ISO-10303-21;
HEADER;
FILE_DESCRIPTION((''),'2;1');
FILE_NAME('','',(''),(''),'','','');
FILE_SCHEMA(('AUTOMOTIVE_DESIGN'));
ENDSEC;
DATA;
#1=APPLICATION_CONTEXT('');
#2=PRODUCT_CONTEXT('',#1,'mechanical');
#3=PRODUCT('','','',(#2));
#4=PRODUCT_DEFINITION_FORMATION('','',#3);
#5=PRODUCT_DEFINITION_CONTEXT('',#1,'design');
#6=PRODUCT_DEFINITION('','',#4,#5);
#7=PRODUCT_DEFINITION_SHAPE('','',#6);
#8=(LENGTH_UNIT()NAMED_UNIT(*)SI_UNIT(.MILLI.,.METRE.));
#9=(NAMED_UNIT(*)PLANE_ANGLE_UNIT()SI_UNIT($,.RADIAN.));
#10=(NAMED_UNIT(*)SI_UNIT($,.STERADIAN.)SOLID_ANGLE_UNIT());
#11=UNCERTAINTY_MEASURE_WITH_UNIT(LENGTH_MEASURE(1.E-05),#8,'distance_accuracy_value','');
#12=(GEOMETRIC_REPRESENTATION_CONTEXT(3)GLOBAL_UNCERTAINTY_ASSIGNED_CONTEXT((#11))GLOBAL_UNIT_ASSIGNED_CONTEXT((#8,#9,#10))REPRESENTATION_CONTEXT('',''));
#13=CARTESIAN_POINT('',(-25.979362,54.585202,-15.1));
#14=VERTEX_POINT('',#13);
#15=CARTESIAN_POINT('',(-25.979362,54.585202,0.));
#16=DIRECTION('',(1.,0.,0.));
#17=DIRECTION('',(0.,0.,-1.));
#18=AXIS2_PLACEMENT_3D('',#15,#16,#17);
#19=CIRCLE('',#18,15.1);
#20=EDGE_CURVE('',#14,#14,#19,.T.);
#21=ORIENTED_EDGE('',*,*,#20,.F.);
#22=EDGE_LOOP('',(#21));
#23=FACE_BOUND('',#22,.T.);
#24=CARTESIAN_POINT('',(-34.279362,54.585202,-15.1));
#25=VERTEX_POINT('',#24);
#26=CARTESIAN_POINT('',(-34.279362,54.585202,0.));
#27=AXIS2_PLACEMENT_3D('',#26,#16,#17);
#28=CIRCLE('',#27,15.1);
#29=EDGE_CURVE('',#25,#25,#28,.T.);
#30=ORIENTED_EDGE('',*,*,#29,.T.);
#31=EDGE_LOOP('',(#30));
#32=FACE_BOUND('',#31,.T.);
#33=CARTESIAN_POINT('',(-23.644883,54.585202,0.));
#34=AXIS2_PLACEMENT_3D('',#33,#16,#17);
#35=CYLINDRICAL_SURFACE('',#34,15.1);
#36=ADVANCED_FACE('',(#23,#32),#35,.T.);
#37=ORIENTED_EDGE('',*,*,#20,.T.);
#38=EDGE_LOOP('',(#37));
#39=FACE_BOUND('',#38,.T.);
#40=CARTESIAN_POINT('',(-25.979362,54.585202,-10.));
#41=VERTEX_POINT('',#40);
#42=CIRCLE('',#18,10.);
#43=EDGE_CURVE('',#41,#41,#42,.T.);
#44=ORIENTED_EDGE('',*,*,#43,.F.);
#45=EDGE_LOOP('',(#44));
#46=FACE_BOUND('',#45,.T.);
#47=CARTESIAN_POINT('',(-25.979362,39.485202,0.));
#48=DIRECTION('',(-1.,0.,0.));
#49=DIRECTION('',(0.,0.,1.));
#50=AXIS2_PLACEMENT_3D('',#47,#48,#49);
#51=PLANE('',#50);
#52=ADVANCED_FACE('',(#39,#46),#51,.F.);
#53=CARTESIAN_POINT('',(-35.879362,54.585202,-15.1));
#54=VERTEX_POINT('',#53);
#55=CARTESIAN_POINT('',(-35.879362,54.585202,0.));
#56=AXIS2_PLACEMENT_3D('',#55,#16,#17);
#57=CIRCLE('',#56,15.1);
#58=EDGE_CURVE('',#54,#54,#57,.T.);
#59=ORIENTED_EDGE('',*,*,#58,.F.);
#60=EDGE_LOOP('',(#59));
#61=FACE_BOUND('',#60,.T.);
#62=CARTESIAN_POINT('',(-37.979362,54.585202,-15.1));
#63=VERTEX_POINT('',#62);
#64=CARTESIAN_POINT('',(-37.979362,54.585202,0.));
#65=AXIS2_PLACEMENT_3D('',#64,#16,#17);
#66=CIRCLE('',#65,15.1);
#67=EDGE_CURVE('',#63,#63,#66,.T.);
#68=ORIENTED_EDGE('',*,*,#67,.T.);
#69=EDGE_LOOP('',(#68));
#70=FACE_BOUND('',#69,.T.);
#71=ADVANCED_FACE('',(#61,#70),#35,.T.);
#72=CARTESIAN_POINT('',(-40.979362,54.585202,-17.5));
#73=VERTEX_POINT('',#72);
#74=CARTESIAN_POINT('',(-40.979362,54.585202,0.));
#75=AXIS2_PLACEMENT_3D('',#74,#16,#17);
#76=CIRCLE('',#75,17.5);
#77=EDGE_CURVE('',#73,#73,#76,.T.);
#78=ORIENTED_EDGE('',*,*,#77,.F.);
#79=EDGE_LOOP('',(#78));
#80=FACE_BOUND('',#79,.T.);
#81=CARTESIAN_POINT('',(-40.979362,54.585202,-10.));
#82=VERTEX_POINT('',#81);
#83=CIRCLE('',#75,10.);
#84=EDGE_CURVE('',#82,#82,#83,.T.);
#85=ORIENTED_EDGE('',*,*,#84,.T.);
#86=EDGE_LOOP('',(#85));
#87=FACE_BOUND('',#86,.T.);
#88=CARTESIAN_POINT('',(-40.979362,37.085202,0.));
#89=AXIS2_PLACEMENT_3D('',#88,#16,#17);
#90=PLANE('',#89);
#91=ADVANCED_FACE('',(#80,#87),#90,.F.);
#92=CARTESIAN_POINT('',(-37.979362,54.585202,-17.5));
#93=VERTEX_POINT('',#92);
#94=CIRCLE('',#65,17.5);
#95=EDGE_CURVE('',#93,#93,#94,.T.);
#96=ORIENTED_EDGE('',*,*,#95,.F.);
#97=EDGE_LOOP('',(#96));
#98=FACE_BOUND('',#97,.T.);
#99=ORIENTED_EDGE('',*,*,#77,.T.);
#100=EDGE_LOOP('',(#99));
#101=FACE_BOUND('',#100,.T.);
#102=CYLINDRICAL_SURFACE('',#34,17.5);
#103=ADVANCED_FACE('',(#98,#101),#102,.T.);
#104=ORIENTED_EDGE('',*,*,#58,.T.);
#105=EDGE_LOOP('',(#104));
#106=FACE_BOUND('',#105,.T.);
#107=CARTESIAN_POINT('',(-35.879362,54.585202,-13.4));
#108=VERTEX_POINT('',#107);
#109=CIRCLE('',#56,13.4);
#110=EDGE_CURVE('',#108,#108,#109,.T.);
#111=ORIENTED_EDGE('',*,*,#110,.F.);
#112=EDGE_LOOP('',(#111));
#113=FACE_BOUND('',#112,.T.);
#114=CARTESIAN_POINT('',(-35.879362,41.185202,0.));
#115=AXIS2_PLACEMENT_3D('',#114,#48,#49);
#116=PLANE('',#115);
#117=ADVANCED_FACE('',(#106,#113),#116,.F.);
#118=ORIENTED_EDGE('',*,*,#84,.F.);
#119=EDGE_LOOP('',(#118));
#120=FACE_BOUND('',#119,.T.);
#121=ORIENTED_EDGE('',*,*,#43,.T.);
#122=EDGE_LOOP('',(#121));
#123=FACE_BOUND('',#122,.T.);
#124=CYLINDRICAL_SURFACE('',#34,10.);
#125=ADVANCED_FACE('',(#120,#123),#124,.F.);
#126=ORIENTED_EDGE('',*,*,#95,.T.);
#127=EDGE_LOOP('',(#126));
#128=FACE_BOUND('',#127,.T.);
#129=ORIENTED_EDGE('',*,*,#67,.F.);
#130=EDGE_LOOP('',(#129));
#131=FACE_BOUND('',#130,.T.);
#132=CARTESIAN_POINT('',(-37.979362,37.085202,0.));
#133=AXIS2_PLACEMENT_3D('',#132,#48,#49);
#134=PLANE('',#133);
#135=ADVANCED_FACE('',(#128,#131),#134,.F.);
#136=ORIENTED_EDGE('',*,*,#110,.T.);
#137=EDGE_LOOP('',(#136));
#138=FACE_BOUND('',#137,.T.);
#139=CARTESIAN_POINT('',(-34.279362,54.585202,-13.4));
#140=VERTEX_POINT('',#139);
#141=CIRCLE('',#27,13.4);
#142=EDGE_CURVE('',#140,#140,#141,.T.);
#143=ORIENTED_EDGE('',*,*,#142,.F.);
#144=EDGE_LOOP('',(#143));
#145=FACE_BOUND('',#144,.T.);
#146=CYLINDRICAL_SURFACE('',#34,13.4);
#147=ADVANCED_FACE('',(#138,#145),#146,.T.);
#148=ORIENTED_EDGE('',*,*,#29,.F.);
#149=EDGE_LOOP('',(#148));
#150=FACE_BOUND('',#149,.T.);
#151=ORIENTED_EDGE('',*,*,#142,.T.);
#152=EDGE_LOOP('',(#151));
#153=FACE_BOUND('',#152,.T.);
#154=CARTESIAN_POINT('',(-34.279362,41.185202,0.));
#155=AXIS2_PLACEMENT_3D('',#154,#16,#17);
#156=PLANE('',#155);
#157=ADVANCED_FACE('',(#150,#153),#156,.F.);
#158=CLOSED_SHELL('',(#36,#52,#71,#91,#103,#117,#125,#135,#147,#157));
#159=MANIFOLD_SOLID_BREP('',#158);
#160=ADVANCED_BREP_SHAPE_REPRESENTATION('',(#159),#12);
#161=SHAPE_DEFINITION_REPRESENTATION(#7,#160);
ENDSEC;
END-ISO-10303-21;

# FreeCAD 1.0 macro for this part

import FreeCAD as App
import Part
import Sketcher
Q = App.Units.Quantity


def add_polygon(sketch, points):
    """Adds a closed chain of lines whose ends are joined by coincident constraints."""
    first, n = sketch.GeometryCount, len(points)
    for a, b in zip(points, points[1:] + points[:1]):
        sketch.addGeometry(Part.LineSegment(App.Vector(*a, 0), App.Vector(*b, 0)), False)
    for i in range(n):
        sketch.addConstraint(Sketcher.Constraint("Coincident", first + i, 2, first + (i + 1) % n, 1))

doc = App.newDocument("Part")
body = doc.addObject("PartDesign::Body", "Body")

# Sketch on XY plane
sketch1 = body.newObject("Sketcher::SketchObject", "Sketch")
sketch1.AttachmentSupport = (doc.getObject("XY_Plane"), [""])
sketch1.MapMode = "FlatFace"
add_polygon(sketch1, [(-41, 37.1), (-38, 37.1), (-38, 39.5), (-35.9, 39.5), (-35.9, 41.2), (-34.3, 41.2), (-34.3, 39.5), (-26, 39.5), (-26, 44.6), (-41, 44.6)])  # lines 0-9
sketch1.addGeometry(Part.LineSegment(App.Vector(-26, 54.6, 0), App.Vector(-41, 54.6, 0)), True)  # axis
sketch1.addConstraint(Sketcher.Constraint("Horizontal", 0))
sketch1.addConstraint(Sketcher.Constraint("Vertical", 1))
sketch1.addConstraint(Sketcher.Constraint("Horizontal", 2))
sketch1.addConstraint(Sketcher.Constraint("Vertical", 3))
sketch1.addConstraint(Sketcher.Constraint("Horizontal", 4))
sketch1.addConstraint(Sketcher.Constraint("Vertical", 5))
sketch1.addConstraint(Sketcher.Constraint("Horizontal", 6))
sketch1.addConstraint(Sketcher.Constraint("Vertical", 7))
sketch1.addConstraint(Sketcher.Constraint("Horizontal", 8))
sketch1.addConstraint(Sketcher.Constraint("Vertical", 9))
sketch1.addConstraint(Sketcher.Constraint("Horizontal", 10))
sketch1.addConstraint(Sketcher.Constraint("Horizontal", 2, 2, 5, 2))
sketch1.addConstraint(Sketcher.Constraint("Vertical", 7, 2, 10, 1))
sketch1.addConstraint(Sketcher.Constraint("Vertical", 9, 2, 10, 2))
sketch1.addConstraint(Sketcher.Constraint("DistanceX", 0, 1, 0, 2, Q("3 mm")))
sketch1.addConstraint(Sketcher.Constraint("DistanceX", 8, 2, 8, 1, Q("15 mm")))
sketch1.addConstraint(Sketcher.Constraint("DistanceX", 2, 1, 2, 2, Q("2.1 mm")))
sketch1.addConstraint(Sketcher.Constraint("DistanceX", 4, 1, 4, 2, Q("1.6 mm")))
sketch1.addConstraint(Sketcher.Constraint("DistanceY", 1, 1, 1, 2, Q("2.4 mm")))
sketch1.addConstraint(Sketcher.Constraint("DistanceY", 3, 1, 3, 2, Q("1.7 mm")))
sketch1.addConstraint(Sketcher.Constraint("DistanceY", 7, 1, 7, 2, Q("5.1 mm")))
sketch1.addConstraint(Sketcher.Constraint("DistanceY", 7, 2, 10, 1, Q("10 mm")))
sketch1.addConstraint(Sketcher.Constraint("DistanceY", -1, 1, 0, 2, Q("37.085202 mm")))
sketch1.addConstraint(Sketcher.Constraint("DistanceX", 0, 2, -1, 1, Q("37.979362 mm")))
revolution = body.newObject("PartDesign::Revolution", "Revolution")
revolution.Profile = sketch1
revolution.ReferenceAxis = (sketch1, ["Axis0"])
revolution.Angle = 360

doc.recompute()
